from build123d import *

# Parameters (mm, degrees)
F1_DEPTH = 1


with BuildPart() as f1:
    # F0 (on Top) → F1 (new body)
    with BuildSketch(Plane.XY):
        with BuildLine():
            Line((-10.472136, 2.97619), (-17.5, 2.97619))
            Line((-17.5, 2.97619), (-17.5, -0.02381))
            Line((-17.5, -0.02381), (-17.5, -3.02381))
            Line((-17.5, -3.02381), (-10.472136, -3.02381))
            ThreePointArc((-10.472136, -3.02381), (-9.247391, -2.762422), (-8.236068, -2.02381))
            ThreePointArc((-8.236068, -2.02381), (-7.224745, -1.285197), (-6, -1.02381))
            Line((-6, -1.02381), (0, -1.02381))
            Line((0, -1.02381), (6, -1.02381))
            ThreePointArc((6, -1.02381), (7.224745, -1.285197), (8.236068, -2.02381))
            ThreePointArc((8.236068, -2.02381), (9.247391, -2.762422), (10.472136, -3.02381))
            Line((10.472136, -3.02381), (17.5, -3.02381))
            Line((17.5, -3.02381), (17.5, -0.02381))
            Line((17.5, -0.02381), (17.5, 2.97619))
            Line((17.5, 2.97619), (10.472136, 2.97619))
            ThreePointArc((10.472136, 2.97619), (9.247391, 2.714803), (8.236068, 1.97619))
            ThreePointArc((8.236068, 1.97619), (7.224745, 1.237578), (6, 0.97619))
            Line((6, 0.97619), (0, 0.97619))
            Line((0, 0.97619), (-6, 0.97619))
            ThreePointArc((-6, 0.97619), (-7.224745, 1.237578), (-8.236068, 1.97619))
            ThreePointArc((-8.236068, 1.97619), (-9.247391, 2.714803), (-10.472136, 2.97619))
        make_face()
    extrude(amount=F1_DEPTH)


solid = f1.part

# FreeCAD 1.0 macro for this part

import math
import FreeCAD as App
import Part
import Sketcher

V = App.Vector
Q = App.Units.Quantity

doc = App.newDocument("Part")
body = doc.addObject("PartDesign::Body", "Body")

sketch1 = body.newObject("Sketcher::SketchObject", "Sketch")
sketch1.AttachmentSupport = (doc.getObject("XY_Plane"), [""])
sketch1.MapMode = "FlatFace"
sketch1.addGeometry(Part.LineSegment(V(-10.5, 3, 0), V(-17.5, 3, 0)), False)
sketch1.addGeometry(Part.LineSegment(V(-17.5, 3, 0), V(-17.5, -3, 0)), False)
sketch1.addGeometry(Part.LineSegment(V(-17.5, -3, 0), V(-10.5, -3, 0)), False)
sketch1.addGeometry(Part.ArcOfCircle(Part.Circle(V(-10.5, 0, 0), V(0, 0, 1), 3), math.radians(-90), math.radians(-42)), False)
sketch1.addGeometry(Part.ArcOfCircle(Part.Circle(V(-6, -4, 0), V(0, 0, 1), 3), math.radians(90), math.radians(138)), False)
sketch1.addGeometry(Part.LineSegment(V(-6, -1, 0), V(6, -1, 0)), False)
sketch1.addGeometry(Part.ArcOfCircle(Part.Circle(V(6, -4, 0), V(0, 0, 1), 3), math.radians(42), math.radians(90)), False)
sketch1.addGeometry(Part.ArcOfCircle(Part.Circle(V(10.5, 0, 0), V(0, 0, 1), 3), math.radians(-138), math.radians(-90)), False)
sketch1.addGeometry(Part.LineSegment(V(10.5, -3, 0), V(17.5, -3, 0)), False)
sketch1.addGeometry(Part.LineSegment(V(17.5, -3, 0), V(17.5, 3, 0)), False)
sketch1.addGeometry(Part.LineSegment(V(17.5, 3, 0), V(10.5, 3, 0)), False)
sketch1.addGeometry(Part.ArcOfCircle(Part.Circle(V(10.5, 0, 0), V(0, 0, 1), 3), math.radians(90), math.radians(138)), False)
sketch1.addGeometry(Part.ArcOfCircle(Part.Circle(V(6, 4, 0), V(0, 0, 1), 3), math.radians(-90), math.radians(-42)), False)
sketch1.addGeometry(Part.LineSegment(V(6, 1, 0), V(-6, 1, 0)), False)
sketch1.addGeometry(Part.ArcOfCircle(Part.Circle(V(-6, 4, 0), V(0, 0, 1), 3), math.radians(-138), math.radians(-90)), False)
sketch1.addGeometry(Part.ArcOfCircle(Part.Circle(V(-10.5, 0, 0), V(0, 0, 1), 3), math.radians(42), math.radians(90)), False)
sketch1.addConstraint(Sketcher.Constraint("Coincident", 0, 2, 1, 1))
sketch1.addConstraint(Sketcher.Constraint("Coincident", 1, 2, 2, 1))
sketch1.addConstraint(Sketcher.Constraint("Tangent", 2, 2, 3, 1))
sketch1.addConstraint(Sketcher.Constraint("Tangent", 3, 2, 4, 2))
sketch1.addConstraint(Sketcher.Constraint("Tangent", 4, 1, 5, 1))
sketch1.addConstraint(Sketcher.Constraint("Tangent", 5, 2, 6, 2))
sketch1.addConstraint(Sketcher.Constraint("Tangent", 6, 1, 7, 1))
sketch1.addConstraint(Sketcher.Constraint("Tangent", 7, 2, 8, 1))
sketch1.addConstraint(Sketcher.Constraint("Coincident", 8, 2, 9, 1))
sketch1.addConstraint(Sketcher.Constraint("Coincident", 9, 2, 10, 1))
sketch1.addConstraint(Sketcher.Constraint("Tangent", 10, 2, 11, 1))
sketch1.addConstraint(Sketcher.Constraint("Tangent", 11, 2, 12, 2))
sketch1.addConstraint(Sketcher.Constraint("Tangent", 12, 1, 13, 1))
sketch1.addConstraint(Sketcher.Constraint("Tangent", 13, 2, 14, 2))
sketch1.addConstraint(Sketcher.Constraint("Tangent", 14, 1, 15, 1))
sketch1.addConstraint(Sketcher.Constraint("Tangent", 15, 2, 0, 1))
sketch1.addConstraint(Sketcher.Constraint("Horizontal", 0))
sketch1.addConstraint(Sketcher.Constraint("Vertical", 1))
sketch1.addConstraint(Sketcher.Constraint("Horizontal", 2))
sketch1.addConstraint(Sketcher.Constraint("Horizontal", 5))
sketch1.addConstraint(Sketcher.Constraint("Horizontal", 8))
sketch1.addConstraint(Sketcher.Constraint("Vertical", 9))
sketch1.addConstraint(Sketcher.Constraint("Horizontal", 10))
sketch1.addConstraint(Sketcher.Constraint("Horizontal", 13))
sketch1.addConstraint(Sketcher.Constraint("Coincident", 11, 3, 7, 3))
sketch1.addConstraint(Sketcher.Constraint("Coincident", 15, 3, 3, 3))
sketch1.addConstraint(Sketcher.Constraint("Equal", 4, 6))
sketch1.addConstraint(Sketcher.Constraint("Equal", 3, 7))
sketch1.addConstraint(Sketcher.Constraint("Equal", 6, 11))
sketch1.addConstraint(Sketcher.Constraint("Equal", 7, 12))
sketch1.addConstraint(Sketcher.Constraint("Equal", 12, 14))
sketch1.addConstraint(Sketcher.Constraint("Equal", 11, 15))
sketch1.addConstraint(Sketcher.Constraint("Symmetric", 3, 3, 7, 3, -2))
sketch1.addConstraint(Sketcher.Constraint("Vertical", 6, 1, 11, 2))
sketch1.addConstraint(Sketcher.Constraint("Vertical", 5, 2, 12, 1))
sketch1.addConstraint(Sketcher.Constraint("Equal", 2, 8))
sketch1.addConstraint(Sketcher.Constraint("DistanceX", 5, 1, 5, 2, Q("12 mm")))
sketch1.addConstraint(Sketcher.Constraint("DistanceY", 1, 2, 1, 1, Q("6 mm")))
sketch1.addConstraint(Sketcher.Constraint("DistanceY", 6, 3, 11, 3, Q("4 mm")))
sketch1.addConstraint(Sketcher.Constraint("DistanceX", 0, 2, -1, 1, Q("17.5 mm")))
sketch1.addConstraint(Sketcher.Constraint("DistanceY", -1, 1, 0, 2, Q("2.97619 mm")))
pad1 = body.newObject("PartDesign::Pad", "Pad")
pad1.Profile = sketch1
pad1.Length = 1

doc.recompute()
